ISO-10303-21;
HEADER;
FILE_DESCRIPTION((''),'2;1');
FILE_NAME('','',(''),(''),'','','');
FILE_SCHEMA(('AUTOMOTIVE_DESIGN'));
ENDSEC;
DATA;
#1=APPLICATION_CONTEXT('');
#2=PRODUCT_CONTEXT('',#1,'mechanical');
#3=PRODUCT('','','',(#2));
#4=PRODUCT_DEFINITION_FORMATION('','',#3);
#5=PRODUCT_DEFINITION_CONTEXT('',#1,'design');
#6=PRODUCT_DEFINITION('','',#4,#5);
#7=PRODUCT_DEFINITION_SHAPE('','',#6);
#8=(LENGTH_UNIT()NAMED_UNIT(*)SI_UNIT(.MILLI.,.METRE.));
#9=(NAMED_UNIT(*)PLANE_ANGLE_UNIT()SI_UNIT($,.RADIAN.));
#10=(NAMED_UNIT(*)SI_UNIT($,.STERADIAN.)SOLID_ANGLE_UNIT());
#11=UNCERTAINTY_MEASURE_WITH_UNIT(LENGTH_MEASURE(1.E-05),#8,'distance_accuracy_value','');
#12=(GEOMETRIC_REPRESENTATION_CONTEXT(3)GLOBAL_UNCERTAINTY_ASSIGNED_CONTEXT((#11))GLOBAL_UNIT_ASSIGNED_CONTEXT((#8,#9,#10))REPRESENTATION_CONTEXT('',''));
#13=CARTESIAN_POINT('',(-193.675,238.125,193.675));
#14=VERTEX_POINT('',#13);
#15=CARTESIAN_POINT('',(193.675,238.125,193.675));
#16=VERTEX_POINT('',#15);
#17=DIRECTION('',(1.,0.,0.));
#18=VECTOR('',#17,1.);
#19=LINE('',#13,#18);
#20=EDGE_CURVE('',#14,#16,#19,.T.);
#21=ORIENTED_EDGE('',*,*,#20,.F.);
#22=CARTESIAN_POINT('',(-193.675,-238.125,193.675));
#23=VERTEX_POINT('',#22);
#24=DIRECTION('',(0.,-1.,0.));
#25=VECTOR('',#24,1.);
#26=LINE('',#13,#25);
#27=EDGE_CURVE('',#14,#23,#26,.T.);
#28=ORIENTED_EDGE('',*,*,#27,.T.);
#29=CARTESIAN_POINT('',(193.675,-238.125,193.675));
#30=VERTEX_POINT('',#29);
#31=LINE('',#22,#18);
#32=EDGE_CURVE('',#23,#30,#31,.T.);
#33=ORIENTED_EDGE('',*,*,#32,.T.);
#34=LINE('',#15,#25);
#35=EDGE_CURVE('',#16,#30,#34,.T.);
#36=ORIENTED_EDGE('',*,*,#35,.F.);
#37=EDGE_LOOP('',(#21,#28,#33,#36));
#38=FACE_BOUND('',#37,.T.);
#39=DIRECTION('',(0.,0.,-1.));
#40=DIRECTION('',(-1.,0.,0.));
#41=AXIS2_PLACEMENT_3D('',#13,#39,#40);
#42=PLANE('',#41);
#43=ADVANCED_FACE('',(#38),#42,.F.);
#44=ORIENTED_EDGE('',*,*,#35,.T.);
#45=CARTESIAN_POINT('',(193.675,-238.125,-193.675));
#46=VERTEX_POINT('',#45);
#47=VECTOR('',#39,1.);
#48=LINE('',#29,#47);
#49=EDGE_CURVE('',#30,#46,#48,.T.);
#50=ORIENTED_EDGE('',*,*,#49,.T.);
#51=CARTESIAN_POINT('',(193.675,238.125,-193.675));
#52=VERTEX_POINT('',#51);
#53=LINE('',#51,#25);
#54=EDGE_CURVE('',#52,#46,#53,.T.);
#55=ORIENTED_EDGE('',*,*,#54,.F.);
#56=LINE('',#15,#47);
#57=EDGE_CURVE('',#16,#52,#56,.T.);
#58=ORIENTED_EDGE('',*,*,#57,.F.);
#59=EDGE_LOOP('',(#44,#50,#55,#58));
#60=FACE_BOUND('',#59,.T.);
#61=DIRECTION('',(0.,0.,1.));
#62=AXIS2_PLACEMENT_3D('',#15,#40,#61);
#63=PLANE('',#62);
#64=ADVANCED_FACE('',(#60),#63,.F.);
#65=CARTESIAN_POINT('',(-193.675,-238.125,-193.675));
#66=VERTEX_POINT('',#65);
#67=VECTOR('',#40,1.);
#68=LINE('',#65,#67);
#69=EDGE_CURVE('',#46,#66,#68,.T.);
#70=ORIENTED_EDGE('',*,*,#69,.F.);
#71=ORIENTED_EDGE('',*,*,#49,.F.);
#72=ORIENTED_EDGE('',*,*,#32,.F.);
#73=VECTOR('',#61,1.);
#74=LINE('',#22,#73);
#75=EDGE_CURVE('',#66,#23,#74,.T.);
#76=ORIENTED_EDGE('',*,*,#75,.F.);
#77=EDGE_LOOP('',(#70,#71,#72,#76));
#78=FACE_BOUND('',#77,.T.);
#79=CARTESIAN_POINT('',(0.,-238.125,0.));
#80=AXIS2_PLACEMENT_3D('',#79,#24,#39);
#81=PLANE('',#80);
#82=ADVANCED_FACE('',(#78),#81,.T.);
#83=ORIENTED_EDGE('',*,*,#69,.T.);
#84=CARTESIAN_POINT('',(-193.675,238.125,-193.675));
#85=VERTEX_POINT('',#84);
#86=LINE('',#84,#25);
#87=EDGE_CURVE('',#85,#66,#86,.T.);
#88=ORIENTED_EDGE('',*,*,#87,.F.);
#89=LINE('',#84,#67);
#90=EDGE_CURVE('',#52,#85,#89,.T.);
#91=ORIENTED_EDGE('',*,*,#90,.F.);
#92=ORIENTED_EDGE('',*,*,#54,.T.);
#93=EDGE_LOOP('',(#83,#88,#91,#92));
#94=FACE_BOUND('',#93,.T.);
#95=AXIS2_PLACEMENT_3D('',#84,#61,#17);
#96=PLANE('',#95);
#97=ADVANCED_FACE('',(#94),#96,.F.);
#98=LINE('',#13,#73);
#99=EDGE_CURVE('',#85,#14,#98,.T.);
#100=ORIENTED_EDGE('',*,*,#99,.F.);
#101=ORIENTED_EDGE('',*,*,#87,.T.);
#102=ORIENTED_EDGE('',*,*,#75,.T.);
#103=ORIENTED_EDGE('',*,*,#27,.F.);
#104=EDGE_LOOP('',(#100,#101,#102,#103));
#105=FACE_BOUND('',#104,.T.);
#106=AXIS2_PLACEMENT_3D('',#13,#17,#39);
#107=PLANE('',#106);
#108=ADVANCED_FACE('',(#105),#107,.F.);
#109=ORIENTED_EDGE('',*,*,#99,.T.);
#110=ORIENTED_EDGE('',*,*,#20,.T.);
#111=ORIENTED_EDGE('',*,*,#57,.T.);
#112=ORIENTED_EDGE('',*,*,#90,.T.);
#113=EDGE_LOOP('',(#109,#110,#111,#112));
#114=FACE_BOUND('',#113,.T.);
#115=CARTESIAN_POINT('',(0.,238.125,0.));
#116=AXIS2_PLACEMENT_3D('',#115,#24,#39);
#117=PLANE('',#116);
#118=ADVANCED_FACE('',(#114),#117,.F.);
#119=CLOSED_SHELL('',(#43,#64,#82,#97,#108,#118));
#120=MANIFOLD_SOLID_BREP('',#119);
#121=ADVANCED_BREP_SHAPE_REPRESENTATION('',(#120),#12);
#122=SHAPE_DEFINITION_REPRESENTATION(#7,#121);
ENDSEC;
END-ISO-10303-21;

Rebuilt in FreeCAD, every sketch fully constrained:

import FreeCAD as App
import Part
import Sketcher
from FreeCAD import Vector
Q = App.Units.Quantity


def add_polygon(sketch, points):
    """Adds a closed chain of lines whose ends are joined by coincident constraints."""
    first, n = sketch.GeometryCount, len(points)
    for a, b in zip(points, points[1:] + points[:1]):
        sketch.addGeometry(Part.LineSegment(App.Vector(*a, 0), App.Vector(*b, 0)), False)
    for i in range(n):
        sketch.addConstraint(Sketcher.Constraint("Coincident", first + i, 2, first + (i + 1) % n, 1))

doc = App.newDocument("Part")
body = doc.addObject("PartDesign::Body", "Body")

# Sketch on XZ plane
sketch1 = body.newObject("Sketcher::SketchObject", "Sketch")
sketch1.AttachmentSupport = (doc.getObject("XZ_Plane"), [""])
sketch1.MapMode = "FlatFace"
add_polygon(sketch1, [(-194, -194), (-194, 194), (194, 194), (194, -194)])  # lines 0-3
sketch1.addConstraint(Sketcher.Constraint("Vertical", 0))
sketch1.addConstraint(Sketcher.Constraint("Horizontal", 1))
sketch1.addConstraint(Sketcher.Constraint("Vertical", 2))
sketch1.addConstraint(Sketcher.Constraint("Horizontal", 3))
sketch1.addConstraint(Sketcher.Constraint("Symmetric", 0, 2, 2, 2, -1, 1))
sketch1.addConstraint(Sketcher.Constraint("Equal", 3, 0))
sketch1.addConstraint(Sketcher.Constraint("DistanceX", 1, 1, 1, 2, Q("15.25 in")))
pad1 = body.newObject("PartDesign::Pad", "Pad")
pad1.Profile = sketch1
pad1.Length = Q("18.75 in")
pad1.Midplane = True

doc.recompute()
